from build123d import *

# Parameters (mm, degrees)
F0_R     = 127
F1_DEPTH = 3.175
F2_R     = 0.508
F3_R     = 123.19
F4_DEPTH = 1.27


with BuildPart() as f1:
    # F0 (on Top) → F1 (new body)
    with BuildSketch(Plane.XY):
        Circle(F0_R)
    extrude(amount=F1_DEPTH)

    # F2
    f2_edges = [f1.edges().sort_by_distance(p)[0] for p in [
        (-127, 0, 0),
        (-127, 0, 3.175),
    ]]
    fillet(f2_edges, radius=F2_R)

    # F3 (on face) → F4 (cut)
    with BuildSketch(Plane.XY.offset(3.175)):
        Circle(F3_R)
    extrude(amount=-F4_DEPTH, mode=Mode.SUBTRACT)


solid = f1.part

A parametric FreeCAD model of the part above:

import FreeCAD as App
import Part
import Sketcher
from FreeCAD import Vector
Q = App.Units.Quantity


def edges_at(feature, points):
    """Names of the edges that pass closest to the given points."""
    edges = feature.Shape.Edges
    near = lambda p: min(range(len(edges)), key=lambda i: edges[i].distToShape(Part.Vertex(*p))[0])
    return sorted({f"Edge{near(p) + 1}" for p in points})

doc = App.newDocument("Part")
body = doc.addObject("PartDesign::Body", "Body")

sketch1 = doc.addObject("Sketcher::SketchObject", "Sketch")
body.addObject(sketch1)
sketch1.AttachmentSupport = (doc.XY_Plane, [""])
sketch1.MapMode = "FlatFace"
sketch1.addGeometry(Part.Circle(Vector(0, 0, 0), Vector(0, 0, 1), 127), False)
sketch1.addConstraint([
    Sketcher.Constraint("Coincident", 0, 3, -1, 1),
    Sketcher.Constraint("Diameter", 0, Q("10 in")),
])
pad1 = doc.addObject("PartDesign::Pad", "Pad")
body.addObject(pad1)
pad1.Profile = sketch1
pad1.Length = Q("0.125 in")
doc.recompute()

fillet = doc.addObject("PartDesign::Fillet", "Fillet")
body.addObject(fillet)
fillet.Base = (pad1, edges_at(pad1, [(-127, 0, 0), (-127, 0, 3.175)]))
fillet.Radius = Q("0.02 in")

sketch2 = doc.addObject("Sketcher::SketchObject", "Sketch001")
body.addObject(sketch2)
sketch2.AttachmentSupport = (doc.XY_Plane, [""])
sketch2.MapMode = "FlatFace"
sketch2.AttachmentOffset = App.Placement(Vector(0, 0, 0.125 * 25.4), App.Rotation())
sketch2.addGeometry(Part.Circle(Vector(0, 0, 0), Vector(0, 0, 1), 123), False)
sketch2.addConstraint([
    Sketcher.Constraint("Coincident", 0, 3, -1, 1),
    Sketcher.Constraint("Diameter", 0, Q("9.7 in")),
])
pocket1 = doc.addObject("PartDesign::Pocket", "Pocket")
body.addObject(pocket1)
pocket1.Profile = sketch2
pocket1.Length = Q("0.05 in")

doc.recompute()
